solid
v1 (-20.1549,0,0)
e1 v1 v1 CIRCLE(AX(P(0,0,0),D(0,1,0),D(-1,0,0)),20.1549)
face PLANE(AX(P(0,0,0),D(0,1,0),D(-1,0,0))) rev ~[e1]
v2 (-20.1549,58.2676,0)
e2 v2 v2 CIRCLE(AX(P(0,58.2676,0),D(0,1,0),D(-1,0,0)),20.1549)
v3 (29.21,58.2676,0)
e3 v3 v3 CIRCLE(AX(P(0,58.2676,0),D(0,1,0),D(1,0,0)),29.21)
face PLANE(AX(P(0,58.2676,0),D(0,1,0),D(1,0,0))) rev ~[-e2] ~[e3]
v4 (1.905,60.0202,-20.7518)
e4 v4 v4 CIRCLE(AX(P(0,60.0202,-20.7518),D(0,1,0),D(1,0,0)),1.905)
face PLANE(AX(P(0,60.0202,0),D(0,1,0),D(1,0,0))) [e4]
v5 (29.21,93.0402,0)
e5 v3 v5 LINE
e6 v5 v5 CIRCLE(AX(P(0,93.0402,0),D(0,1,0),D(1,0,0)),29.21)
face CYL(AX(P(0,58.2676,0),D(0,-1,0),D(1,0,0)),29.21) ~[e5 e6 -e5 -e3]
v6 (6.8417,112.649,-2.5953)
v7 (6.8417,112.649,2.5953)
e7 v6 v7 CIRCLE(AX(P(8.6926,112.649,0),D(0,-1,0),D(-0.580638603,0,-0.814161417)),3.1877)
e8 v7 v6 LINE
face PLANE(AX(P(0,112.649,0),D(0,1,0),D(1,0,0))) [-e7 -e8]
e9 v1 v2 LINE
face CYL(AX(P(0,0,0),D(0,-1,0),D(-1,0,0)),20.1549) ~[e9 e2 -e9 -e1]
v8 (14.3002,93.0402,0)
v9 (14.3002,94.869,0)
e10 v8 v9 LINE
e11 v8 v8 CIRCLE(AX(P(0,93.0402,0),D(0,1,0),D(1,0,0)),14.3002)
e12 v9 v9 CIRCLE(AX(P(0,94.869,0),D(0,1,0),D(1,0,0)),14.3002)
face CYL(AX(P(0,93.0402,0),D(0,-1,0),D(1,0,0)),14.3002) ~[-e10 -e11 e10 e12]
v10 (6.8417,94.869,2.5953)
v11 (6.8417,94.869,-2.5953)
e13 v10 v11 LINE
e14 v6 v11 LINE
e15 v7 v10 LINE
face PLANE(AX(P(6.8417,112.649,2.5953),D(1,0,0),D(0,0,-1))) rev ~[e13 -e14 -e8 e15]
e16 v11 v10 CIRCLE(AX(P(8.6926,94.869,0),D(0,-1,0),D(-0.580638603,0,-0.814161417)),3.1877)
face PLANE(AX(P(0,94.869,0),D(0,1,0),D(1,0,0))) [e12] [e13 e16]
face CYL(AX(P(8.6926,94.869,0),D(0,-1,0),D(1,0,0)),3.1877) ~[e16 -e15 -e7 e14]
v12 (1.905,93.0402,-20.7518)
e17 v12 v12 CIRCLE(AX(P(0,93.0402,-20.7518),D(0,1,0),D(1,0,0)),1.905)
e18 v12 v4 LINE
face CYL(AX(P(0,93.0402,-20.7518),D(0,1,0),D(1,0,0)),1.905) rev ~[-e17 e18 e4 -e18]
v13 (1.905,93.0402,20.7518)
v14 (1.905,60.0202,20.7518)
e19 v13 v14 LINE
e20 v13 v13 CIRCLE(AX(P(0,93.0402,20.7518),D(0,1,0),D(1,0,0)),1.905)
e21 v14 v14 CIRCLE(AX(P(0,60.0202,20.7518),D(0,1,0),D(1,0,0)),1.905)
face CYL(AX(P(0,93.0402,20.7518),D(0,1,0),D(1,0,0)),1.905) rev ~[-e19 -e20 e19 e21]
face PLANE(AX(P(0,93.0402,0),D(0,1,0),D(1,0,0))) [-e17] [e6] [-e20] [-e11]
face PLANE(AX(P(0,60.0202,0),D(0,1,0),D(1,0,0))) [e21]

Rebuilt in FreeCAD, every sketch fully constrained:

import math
import FreeCAD as App
import Part
import Sketcher
Q = App.Units.Quantity

doc = App.newDocument("Part")
body = doc.addObject("PartDesign::Body", "Body")

# Sketch on XZ plane
sketch1 = body.newObject("Sketcher::SketchObject", "Sketch")
sketch1.AttachmentSupport = (doc.getObject("XZ_Plane"), [""])
sketch1.MapMode = "FlatFace"
sketch1.addGeometry(Part.Circle(App.Vector(0, 0, 0), App.Vector(0, 0, 1), 20), False)
sketch1.addConstraint([
    Sketcher.Constraint("Coincident", 0, 3, -1, 1),
    Sketcher.Constraint("Diameter", 0, Q("1.587 in")),
])
pad1 = body.newObject("PartDesign::Pad", "Pad")
pad1.Profile = sketch1
pad1.Length = Q("2.294 in")
pad1.Reversed = True

# Sketch on XZ plane
sketch2 = body.newObject("Sketcher::SketchObject", "Sketch001")
sketch2.AttachmentSupport = (doc.getObject("XZ_Plane"), [""])
sketch2.MapMode = "FlatFace"
sketch2.AttachmentOffset = App.Placement(App.Vector(0, 0, -2.294 * 25.4), App.Rotation())
sketch2.addGeometry(Part.Circle(App.Vector(0, 0, 0), App.Vector(0, 0, 1), 29), False)
sketch2.addConstraint([
    Sketcher.Constraint("Coincident", 0, 3, -1, 1),
    Sketcher.Constraint("Diameter", 0, Q("2.3 in")),
])
pad2 = body.newObject("PartDesign::Pad", "Pad001")
pad2.Profile = sketch2
pad2.Length = Q("1.369 in")
pad2.Reversed = True

# Sketch on XZ plane
sketch3 = body.newObject("Sketcher::SketchObject", "Sketch002")
sketch3.AttachmentSupport = (doc.getObject("XZ_Plane"), [""])
sketch3.MapMode = "FlatFace"
sketch3.AttachmentOffset = App.Placement(App.Vector(0, 0, -3.663 * 25.4), App.Rotation())
sketch3.addGeometry(Part.Circle(App.Vector(0, 0, 0), App.Vector(0, 0, 1), 14), False)
sketch3.addConstraint([
    Sketcher.Constraint("Coincident", 0, 3, -1, 1),
    Sketcher.Constraint("Diameter", 0, Q("1.126 in")),
])
pad3 = body.newObject("PartDesign::Pad", "Pad002")
pad3.Profile = sketch3
pad3.Length = Q("0.072 in")
pad3.Reversed = True

# Sketch on XZ plane
sketch4 = body.newObject("Sketcher::SketchObject", "Sketch003")
sketch4.AttachmentSupport = (doc.getObject("XZ_Plane"), [""])
sketch4.MapMode = "FlatFace"
sketch4.AttachmentOffset = App.Placement(App.Vector(0, 0, -3.663 * 25.4), App.Rotation())
sketch4.addGeometry([
    Part.Circle(App.Vector(0, -20.8, 0), App.Vector(0, 0, 1), 1.9),
    Part.Circle(App.Vector(0, 20.8, 0), App.Vector(0, 0, 1), 1.9),
], False)
sketch4.addConstraint([
    Sketcher.Constraint("Equal", 0, 1),
    Sketcher.Constraint("Symmetric", 0, 3, 1, 3, -1, 1),
    Sketcher.Constraint("PointOnObject", 0, 3, -2),
    Sketcher.Constraint("Diameter", 0, Q("0.15 in")),
    Sketcher.Constraint("DistanceY", 0, 3, -1, 1, Q("0.817 in")),
])
pocket1 = body.newObject("PartDesign::Pocket", "Pocket")
pocket1.Profile = sketch4
pocket1.Length = Q("1.3 in")
pocket1.Reversed = True

# Sketch on XZ plane
sketch5 = body.newObject("Sketcher::SketchObject", "Sketch004")
sketch5.AttachmentSupport = (doc.getObject("XZ_Plane"), [""])
sketch5.MapMode = "FlatFace"
sketch5.AttachmentOffset = App.Placement(App.Vector(0, 0, -3.735 * 25.4), App.Rotation())
sketch5.addGeometry(Part.Circle(App.Vector(8.7, 0, 0), App.Vector(0, 0, 1), 3.2), False)
sketch5.addConstraint([
    Sketcher.Constraint("PointOnObject", 0, 3, -1),
    Sketcher.Constraint("Diameter", 0, Q("0.251 in")),
    Sketcher.Constraint("DistanceX", -1, 1, 0, 3, Q("8.6926 mm")),
])
pad4 = body.newObject("PartDesign::Pad", "Pad003")
pad4.Profile = sketch5
pad4.Length = Q("0.7 in")
pad4.Reversed = True

# Sketch on XZ plane
sketch6 = body.newObject("Sketcher::SketchObject", "Sketch005")
sketch6.AttachmentSupport = (doc.getObject("XZ_Plane"), [""])
sketch6.MapMode = "FlatFace"
sketch6.AttachmentOffset = App.Placement(App.Vector(0, 0, -4.435 * 25.4), App.Rotation())
sketch6.addGeometry([
    Part.LineSegment(App.Vector(6.8, 2.6, 0), App.Vector(6.8, -2.6, 0)),
    Part.ArcOfCircle(Part.Circle(App.Vector(8.7, 0, 0), App.Vector(0, 0, 1), 3.2), math.radians(125), math.radians(235)),
], False)
sketch6.addConstraint([
    Sketcher.Constraint("Coincident", 0, 1, 1, 1),
    Sketcher.Constraint("Coincident", 1, 2, 0, 2),
    Sketcher.Constraint("Vertical", 0),
    Sketcher.Constraint("PointOnObject", 1, 3, -1),
    Sketcher.Constraint("Radius", 1, Q("0.1255 in")),
    Sketcher.Constraint("DistanceY", 0, 2, 0, 1, Q("5.1906 mm")),
    Sketcher.Constraint("DistanceX", -1, 1, 1, 3, Q("8.6926 mm")),
])
pocket2 = body.newObject("PartDesign::Pocket", "Pocket001")
pocket2.Profile = sketch6
pocket2.Length = Q("0.7 in")
pocket2.Reversed = True

doc.recompute()
